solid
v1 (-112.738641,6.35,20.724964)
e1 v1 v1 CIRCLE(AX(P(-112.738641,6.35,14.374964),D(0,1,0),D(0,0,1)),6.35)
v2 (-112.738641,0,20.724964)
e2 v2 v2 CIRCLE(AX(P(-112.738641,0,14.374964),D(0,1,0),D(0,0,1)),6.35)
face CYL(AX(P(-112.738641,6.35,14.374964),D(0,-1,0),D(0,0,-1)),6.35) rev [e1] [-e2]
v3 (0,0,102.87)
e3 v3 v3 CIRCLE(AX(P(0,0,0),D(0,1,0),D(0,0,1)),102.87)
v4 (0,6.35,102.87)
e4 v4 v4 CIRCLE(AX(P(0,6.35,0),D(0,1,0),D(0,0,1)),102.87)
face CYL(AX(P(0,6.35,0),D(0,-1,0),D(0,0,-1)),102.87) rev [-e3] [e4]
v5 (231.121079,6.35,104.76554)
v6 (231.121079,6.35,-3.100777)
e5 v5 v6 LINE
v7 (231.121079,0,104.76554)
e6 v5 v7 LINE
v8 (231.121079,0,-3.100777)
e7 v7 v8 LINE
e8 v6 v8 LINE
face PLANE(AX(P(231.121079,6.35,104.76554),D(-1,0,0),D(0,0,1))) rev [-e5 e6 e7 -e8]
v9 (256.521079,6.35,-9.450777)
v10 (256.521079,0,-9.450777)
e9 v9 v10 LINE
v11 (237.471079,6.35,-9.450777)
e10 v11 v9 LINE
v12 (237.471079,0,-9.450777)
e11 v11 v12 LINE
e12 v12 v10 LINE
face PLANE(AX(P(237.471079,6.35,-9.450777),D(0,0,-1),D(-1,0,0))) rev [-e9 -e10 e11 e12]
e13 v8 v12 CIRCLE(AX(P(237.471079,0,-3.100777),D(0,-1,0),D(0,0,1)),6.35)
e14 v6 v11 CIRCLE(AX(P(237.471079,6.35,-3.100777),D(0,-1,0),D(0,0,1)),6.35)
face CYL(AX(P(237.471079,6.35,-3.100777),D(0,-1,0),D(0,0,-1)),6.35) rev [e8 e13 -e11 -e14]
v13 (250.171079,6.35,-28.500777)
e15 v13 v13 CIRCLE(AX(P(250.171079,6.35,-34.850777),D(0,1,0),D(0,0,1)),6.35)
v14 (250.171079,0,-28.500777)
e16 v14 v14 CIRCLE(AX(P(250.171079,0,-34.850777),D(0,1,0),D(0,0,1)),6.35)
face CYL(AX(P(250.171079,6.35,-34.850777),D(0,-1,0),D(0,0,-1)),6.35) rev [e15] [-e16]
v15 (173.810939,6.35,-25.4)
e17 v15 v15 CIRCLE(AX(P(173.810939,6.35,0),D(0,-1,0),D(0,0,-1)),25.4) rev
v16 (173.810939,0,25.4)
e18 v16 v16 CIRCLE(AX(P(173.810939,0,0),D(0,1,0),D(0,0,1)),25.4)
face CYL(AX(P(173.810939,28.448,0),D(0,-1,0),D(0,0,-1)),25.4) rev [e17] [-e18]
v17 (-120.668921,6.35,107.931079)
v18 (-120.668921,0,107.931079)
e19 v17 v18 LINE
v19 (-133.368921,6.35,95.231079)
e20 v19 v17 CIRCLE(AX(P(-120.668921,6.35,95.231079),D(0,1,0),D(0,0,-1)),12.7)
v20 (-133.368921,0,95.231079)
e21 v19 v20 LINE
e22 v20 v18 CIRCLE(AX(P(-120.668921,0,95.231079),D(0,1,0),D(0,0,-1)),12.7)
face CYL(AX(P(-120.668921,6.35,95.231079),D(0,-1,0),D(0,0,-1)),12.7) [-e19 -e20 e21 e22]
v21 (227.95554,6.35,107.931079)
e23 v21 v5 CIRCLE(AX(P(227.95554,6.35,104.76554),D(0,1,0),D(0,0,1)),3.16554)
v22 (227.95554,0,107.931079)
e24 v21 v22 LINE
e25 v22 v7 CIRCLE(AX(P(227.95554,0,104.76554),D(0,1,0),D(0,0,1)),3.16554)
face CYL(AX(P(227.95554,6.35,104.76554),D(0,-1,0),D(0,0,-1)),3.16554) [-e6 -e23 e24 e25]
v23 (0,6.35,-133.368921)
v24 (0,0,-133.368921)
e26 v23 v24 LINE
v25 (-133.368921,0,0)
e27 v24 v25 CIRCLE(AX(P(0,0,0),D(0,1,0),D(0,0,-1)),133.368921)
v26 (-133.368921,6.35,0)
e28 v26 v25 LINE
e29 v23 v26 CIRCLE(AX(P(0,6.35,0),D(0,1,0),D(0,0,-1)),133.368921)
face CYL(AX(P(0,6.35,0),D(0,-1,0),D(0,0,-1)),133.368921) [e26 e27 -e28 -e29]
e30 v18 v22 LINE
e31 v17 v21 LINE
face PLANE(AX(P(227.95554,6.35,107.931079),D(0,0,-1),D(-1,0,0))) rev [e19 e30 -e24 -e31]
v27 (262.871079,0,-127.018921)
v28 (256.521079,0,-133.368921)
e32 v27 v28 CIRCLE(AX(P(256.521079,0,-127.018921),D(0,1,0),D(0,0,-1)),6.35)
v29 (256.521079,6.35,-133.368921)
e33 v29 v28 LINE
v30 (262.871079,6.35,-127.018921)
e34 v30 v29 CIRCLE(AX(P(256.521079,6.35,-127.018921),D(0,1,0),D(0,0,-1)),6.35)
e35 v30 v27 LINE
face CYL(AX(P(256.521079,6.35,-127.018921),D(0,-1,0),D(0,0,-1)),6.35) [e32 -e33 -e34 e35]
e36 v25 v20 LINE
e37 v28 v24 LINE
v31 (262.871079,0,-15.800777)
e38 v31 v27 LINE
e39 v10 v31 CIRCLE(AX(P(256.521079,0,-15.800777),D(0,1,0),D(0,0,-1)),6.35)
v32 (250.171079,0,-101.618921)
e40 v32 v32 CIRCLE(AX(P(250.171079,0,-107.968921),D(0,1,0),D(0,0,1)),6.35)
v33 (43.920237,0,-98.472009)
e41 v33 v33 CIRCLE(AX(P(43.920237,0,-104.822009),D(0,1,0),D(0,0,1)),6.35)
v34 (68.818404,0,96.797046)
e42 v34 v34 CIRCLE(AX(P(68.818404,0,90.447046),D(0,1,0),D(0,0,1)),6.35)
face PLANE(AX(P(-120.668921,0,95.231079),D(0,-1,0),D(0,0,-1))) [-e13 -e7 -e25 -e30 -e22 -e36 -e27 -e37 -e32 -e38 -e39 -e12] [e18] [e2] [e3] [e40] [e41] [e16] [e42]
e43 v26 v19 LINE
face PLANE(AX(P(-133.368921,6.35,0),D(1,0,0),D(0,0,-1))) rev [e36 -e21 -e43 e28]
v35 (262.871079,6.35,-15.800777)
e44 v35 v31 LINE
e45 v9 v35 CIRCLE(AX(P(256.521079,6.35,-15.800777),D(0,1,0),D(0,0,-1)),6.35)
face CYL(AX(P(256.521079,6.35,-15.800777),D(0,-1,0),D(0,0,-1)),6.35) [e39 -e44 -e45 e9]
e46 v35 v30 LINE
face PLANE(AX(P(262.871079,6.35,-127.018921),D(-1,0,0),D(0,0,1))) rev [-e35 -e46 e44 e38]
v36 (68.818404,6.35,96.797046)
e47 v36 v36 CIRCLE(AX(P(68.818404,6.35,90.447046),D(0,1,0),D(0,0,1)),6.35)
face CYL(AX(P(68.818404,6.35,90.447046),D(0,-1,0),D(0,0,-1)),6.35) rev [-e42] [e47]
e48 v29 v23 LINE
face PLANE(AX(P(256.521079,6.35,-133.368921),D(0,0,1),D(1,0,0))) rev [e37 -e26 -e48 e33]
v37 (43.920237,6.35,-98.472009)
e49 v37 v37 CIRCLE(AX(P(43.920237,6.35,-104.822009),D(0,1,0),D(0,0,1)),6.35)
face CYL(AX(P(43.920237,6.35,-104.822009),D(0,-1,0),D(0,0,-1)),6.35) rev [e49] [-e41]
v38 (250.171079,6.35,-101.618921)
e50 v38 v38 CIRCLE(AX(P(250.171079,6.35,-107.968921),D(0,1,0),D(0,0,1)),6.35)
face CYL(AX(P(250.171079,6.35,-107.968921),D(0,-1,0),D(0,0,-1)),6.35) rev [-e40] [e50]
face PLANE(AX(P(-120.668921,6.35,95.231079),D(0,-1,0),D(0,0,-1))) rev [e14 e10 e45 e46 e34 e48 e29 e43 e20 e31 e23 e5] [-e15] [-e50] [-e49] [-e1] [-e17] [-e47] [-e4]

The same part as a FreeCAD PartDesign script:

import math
import FreeCAD as App
import Part
import Sketcher
Q = App.Units.Quantity

doc = App.newDocument("Part")
params = doc.addObject("Spreadsheet::Sheet", "Params")
for row, (alias, value) in enumerate([
    ("sketch1_diameter", "0.5 in"),
    ("sketch1_diameter2", "8.1 in"),
    ("sketch1_radius", "0.5 in"),
    ("pad1_length", "0.25 in"),
    ("sketch2_diameter", "2 in"),
    ("pocket1_length", "1.12 in"),
], start=1):
    params.set(f"A{row}", alias)
    params.set(f"B{row}", "=" + value)
    params.setAlias(f"B{row}", alias)

body = doc.addObject("PartDesign::Body", "Body")

# Sketch on XZ plane
sketch1 = body.newObject("Sketcher::SketchObject", "Sketch")
sketch1.AttachmentSupport = (doc.getObject("XZ_Plane"), [""])
sketch1.MapMode = "FlatFace"
sketch1.addGeometry(Part.LineSegment(App.Vector(256.5, -133.4, 0), App.Vector(0, -133.4, 0)), False)
sketch1.addGeometry(Part.ArcOfCircle(Part.Circle(App.Vector(0, 0, 0), App.Vector(0, 0, 1), 133.4), math.radians(180), math.radians(270)), False)
sketch1.addGeometry(Part.LineSegment(App.Vector(-133.4, 0, 0), App.Vector(-133.4, 95.2, 0)), False)
sketch1.addGeometry(Part.ArcOfCircle(Part.Circle(App.Vector(-120.7, 95.2, 0), App.Vector(0, 0, 1), 12.7), math.radians(90), math.radians(180)), False)
sketch1.addGeometry(Part.LineSegment(App.Vector(-120.7, 107.9, 0), App.Vector(228, 107.9, 0)), False)
sketch1.addGeometry(Part.ArcOfCircle(Part.Circle(App.Vector(228, 104.8, 0), App.Vector(0, 0, 1), 3.2), math.radians(0), math.radians(90)), False)
sketch1.addGeometry(Part.LineSegment(App.Vector(231.1, 104.8, 0), App.Vector(231.1, -3.1, 0)), False)
sketch1.addGeometry(Part.ArcOfCircle(Part.Circle(App.Vector(237.5, -3.1, 0), App.Vector(0, 0, 1), 6.3), math.radians(180), math.radians(270)), False)
sketch1.addGeometry(Part.LineSegment(App.Vector(237.5, -9.5, 0), App.Vector(256.5, -9.5, 0)), False)
sketch1.addGeometry(Part.ArcOfCircle(Part.Circle(App.Vector(256.5, -15.8, 0), App.Vector(0, 0, 1), 6.3), math.radians(0), math.radians(90)), False)
sketch1.addGeometry(Part.LineSegment(App.Vector(262.9, -15.8, 0), App.Vector(262.9, -127, 0)), False)
sketch1.addGeometry(Part.ArcOfCircle(Part.Circle(App.Vector(256.5, -127, 0), App.Vector(0, 0, 1), 6.3), math.radians(-90), math.radians(0)), False)
sketch1.addGeometry(Part.Circle(App.Vector(-112.7, 14.4, 0), App.Vector(0, 0, 1), 6.3), False)
sketch1.addGeometry(Part.Circle(App.Vector(0, 0, 0), App.Vector(0, 0, 1), 102.9), False)
sketch1.addGeometry(Part.Circle(App.Vector(68.8, 90.4, 0), App.Vector(0, 0, 1), 6.3), False)
sketch1.addGeometry(Part.Circle(App.Vector(43.9, -104.8, 0), App.Vector(0, 0, 1), 6.3), False)
sketch1.addGeometry(Part.Circle(App.Vector(250.2, -34.9, 0), App.Vector(0, 0, 1), 6.3), False)
sketch1.addGeometry(Part.Circle(App.Vector(250.2, -108, 0), App.Vector(0, 0, 1), 6.3), False)
sketch1.addConstraint(Sketcher.Constraint("Tangent", 0, 2, 1, 2))
sketch1.addConstraint(Sketcher.Constraint("Tangent", 1, 1, 2, 1))
sketch1.addConstraint(Sketcher.Constraint("Tangent", 2, 2, 3, 2))
sketch1.addConstraint(Sketcher.Constraint("Tangent", 3, 1, 4, 1))
sketch1.addConstraint(Sketcher.Constraint("Tangent", 4, 2, 5, 2))
sketch1.addConstraint(Sketcher.Constraint("Tangent", 5, 1, 6, 1))
sketch1.addConstraint(Sketcher.Constraint("Tangent", 6, 2, 7, 1))
sketch1.addConstraint(Sketcher.Constraint("Tangent", 7, 2, 8, 1))
sketch1.addConstraint(Sketcher.Constraint("Tangent", 8, 2, 9, 2))
sketch1.addConstraint(Sketcher.Constraint("Tangent", 9, 1, 10, 1))
sketch1.addConstraint(Sketcher.Constraint("Tangent", 10, 2, 11, 2))
sketch1.addConstraint(Sketcher.Constraint("Tangent", 11, 1, 0, 1))
sketch1.addConstraint(Sketcher.Constraint("Horizontal", 0))
sketch1.addConstraint(Sketcher.Constraint("Vertical", 2))
sketch1.addConstraint(Sketcher.Constraint("Horizontal", 4))
sketch1.addConstraint(Sketcher.Constraint("Vertical", 6))
sketch1.addConstraint(Sketcher.Constraint("Horizontal", 8))
sketch1.addConstraint(Sketcher.Constraint("Vertical", 10))
sketch1.addConstraint(Sketcher.Constraint("Coincident", 1, 3, -1, 1))
sketch1.addConstraint(Sketcher.Constraint("Coincident", 13, 3, -1, 1))
sketch1.addConstraint(Sketcher.Constraint("Equal", 7, 9))
sketch1.addConstraint(Sketcher.Constraint("Equal", 9, 11))
sketch1.addConstraint(Sketcher.Constraint("Equal", 11, 12))
sketch1.addConstraint(Sketcher.Constraint("Equal", 12, 14))
sketch1.addConstraint(Sketcher.Constraint("Equal", 14, 15))
sketch1.addConstraint(Sketcher.Constraint("Equal", 15, 16))
sketch1.addConstraint(Sketcher.Constraint("Equal", 16, 17))
sketch1.addConstraint(Sketcher.Constraint("Vertical", 16, 3, 17, 3))
sketch1.addConstraint(Sketcher.Constraint("Diameter", 12, Q("0.5 in")))
sketch1.addConstraint(Sketcher.Constraint("Diameter", 13, Q("8.1 in")))
sketch1.addConstraint(Sketcher.Constraint("Radius", 3, Q("0.5 in")))
sketch1.addConstraint(Sketcher.Constraint("DistanceX", 5, 1, 9, 3, Q("1 in")))
sketch1.addConstraint(Sketcher.Constraint("DistanceY", 16, 3, 7, 2, Q("1 in")))
sketch1.addConstraint(Sketcher.Constraint("DistanceY", 11, 1, 17, 3, Q("1 in")))
sketch1.addConstraint(Sketcher.Constraint("DistanceX", 3, 3, 7, 3, Q("14.1 in")))
sketch1.addConstraint(Sketcher.Constraint("DistanceX", 7, 3, 16, 3, Q("0.5 in")))
sketch1.addConstraint(Sketcher.Constraint("DistanceY", 11, 3, 3, 3, Q("8.75 in")))
sketch1.addConstraint(Sketcher.Constraint("Radius", 1, 133.368921))
sketch1.addConstraint(Sketcher.Constraint("Radius", 5, 3.16554))
sketch1.addConstraint(Sketcher.Constraint("DistanceY", 6, 2, 6, 1, 107.866317))
sketch1.addConstraint(Sketcher.Constraint("DistanceX", 12, 3, -1, 1, 112.738641))
sketch1.addConstraint(Sketcher.Constraint("DistanceY", 15, 3, -1, 1, 104.822009))
sketch1.addConstraint(Sketcher.Constraint("DistanceY", 7, 3, 12, 3, 17.475741))
sketch1.addConstraint(Sketcher.Constraint("DistanceX", 12, 3, 15, 3, 156.658878))
sketch1.addConstraint(Sketcher.Constraint("DistanceX", -1, 1, 14, 3, 68.818404))
sketch1.addConstraint(Sketcher.Constraint("DistanceY", -1, 1, 14, 3, 90.447046))
sketch1.setExpression("Constraints[28]", "Params.sketch1_diameter")
sketch1.setExpression("Constraints[29]", "Params.sketch1_diameter2")
sketch1.setExpression("Constraints[30]", "Params.sketch1_radius")
pad1 = body.newObject("PartDesign::Pad", "Pad")
pad1.Profile = sketch1
pad1.setExpression("Length", "Params.pad1_length")
pad1.Reversed = True

# Sketch on XZ plane
sketch2 = body.newObject("Sketcher::SketchObject", "Sketch001")
sketch2.AttachmentSupport = (doc.getObject("XZ_Plane"), [""])
sketch2.MapMode = "FlatFace"
sketch2.addGeometry(Part.Circle(App.Vector(174, 0, 0), App.Vector(0, 0, 1), 25), False)
sketch2.addConstraint(Sketcher.Constraint("PointOnObject", 0, 3, -1))
sketch2.addConstraint(Sketcher.Constraint("Diameter", 0, Q("2 in")))
sketch2.addConstraint(Sketcher.Constraint("DistanceX", -1, 1, 0, 3, 173.810939))
sketch2.setExpression("Constraints[1]", "Params.sketch2_diameter")
pocket1 = body.newObject("PartDesign::Pocket", "Pocket")
pocket1.Profile = sketch2
pocket1.setExpression("Length", "Params.pocket1_length")

doc.recompute()
